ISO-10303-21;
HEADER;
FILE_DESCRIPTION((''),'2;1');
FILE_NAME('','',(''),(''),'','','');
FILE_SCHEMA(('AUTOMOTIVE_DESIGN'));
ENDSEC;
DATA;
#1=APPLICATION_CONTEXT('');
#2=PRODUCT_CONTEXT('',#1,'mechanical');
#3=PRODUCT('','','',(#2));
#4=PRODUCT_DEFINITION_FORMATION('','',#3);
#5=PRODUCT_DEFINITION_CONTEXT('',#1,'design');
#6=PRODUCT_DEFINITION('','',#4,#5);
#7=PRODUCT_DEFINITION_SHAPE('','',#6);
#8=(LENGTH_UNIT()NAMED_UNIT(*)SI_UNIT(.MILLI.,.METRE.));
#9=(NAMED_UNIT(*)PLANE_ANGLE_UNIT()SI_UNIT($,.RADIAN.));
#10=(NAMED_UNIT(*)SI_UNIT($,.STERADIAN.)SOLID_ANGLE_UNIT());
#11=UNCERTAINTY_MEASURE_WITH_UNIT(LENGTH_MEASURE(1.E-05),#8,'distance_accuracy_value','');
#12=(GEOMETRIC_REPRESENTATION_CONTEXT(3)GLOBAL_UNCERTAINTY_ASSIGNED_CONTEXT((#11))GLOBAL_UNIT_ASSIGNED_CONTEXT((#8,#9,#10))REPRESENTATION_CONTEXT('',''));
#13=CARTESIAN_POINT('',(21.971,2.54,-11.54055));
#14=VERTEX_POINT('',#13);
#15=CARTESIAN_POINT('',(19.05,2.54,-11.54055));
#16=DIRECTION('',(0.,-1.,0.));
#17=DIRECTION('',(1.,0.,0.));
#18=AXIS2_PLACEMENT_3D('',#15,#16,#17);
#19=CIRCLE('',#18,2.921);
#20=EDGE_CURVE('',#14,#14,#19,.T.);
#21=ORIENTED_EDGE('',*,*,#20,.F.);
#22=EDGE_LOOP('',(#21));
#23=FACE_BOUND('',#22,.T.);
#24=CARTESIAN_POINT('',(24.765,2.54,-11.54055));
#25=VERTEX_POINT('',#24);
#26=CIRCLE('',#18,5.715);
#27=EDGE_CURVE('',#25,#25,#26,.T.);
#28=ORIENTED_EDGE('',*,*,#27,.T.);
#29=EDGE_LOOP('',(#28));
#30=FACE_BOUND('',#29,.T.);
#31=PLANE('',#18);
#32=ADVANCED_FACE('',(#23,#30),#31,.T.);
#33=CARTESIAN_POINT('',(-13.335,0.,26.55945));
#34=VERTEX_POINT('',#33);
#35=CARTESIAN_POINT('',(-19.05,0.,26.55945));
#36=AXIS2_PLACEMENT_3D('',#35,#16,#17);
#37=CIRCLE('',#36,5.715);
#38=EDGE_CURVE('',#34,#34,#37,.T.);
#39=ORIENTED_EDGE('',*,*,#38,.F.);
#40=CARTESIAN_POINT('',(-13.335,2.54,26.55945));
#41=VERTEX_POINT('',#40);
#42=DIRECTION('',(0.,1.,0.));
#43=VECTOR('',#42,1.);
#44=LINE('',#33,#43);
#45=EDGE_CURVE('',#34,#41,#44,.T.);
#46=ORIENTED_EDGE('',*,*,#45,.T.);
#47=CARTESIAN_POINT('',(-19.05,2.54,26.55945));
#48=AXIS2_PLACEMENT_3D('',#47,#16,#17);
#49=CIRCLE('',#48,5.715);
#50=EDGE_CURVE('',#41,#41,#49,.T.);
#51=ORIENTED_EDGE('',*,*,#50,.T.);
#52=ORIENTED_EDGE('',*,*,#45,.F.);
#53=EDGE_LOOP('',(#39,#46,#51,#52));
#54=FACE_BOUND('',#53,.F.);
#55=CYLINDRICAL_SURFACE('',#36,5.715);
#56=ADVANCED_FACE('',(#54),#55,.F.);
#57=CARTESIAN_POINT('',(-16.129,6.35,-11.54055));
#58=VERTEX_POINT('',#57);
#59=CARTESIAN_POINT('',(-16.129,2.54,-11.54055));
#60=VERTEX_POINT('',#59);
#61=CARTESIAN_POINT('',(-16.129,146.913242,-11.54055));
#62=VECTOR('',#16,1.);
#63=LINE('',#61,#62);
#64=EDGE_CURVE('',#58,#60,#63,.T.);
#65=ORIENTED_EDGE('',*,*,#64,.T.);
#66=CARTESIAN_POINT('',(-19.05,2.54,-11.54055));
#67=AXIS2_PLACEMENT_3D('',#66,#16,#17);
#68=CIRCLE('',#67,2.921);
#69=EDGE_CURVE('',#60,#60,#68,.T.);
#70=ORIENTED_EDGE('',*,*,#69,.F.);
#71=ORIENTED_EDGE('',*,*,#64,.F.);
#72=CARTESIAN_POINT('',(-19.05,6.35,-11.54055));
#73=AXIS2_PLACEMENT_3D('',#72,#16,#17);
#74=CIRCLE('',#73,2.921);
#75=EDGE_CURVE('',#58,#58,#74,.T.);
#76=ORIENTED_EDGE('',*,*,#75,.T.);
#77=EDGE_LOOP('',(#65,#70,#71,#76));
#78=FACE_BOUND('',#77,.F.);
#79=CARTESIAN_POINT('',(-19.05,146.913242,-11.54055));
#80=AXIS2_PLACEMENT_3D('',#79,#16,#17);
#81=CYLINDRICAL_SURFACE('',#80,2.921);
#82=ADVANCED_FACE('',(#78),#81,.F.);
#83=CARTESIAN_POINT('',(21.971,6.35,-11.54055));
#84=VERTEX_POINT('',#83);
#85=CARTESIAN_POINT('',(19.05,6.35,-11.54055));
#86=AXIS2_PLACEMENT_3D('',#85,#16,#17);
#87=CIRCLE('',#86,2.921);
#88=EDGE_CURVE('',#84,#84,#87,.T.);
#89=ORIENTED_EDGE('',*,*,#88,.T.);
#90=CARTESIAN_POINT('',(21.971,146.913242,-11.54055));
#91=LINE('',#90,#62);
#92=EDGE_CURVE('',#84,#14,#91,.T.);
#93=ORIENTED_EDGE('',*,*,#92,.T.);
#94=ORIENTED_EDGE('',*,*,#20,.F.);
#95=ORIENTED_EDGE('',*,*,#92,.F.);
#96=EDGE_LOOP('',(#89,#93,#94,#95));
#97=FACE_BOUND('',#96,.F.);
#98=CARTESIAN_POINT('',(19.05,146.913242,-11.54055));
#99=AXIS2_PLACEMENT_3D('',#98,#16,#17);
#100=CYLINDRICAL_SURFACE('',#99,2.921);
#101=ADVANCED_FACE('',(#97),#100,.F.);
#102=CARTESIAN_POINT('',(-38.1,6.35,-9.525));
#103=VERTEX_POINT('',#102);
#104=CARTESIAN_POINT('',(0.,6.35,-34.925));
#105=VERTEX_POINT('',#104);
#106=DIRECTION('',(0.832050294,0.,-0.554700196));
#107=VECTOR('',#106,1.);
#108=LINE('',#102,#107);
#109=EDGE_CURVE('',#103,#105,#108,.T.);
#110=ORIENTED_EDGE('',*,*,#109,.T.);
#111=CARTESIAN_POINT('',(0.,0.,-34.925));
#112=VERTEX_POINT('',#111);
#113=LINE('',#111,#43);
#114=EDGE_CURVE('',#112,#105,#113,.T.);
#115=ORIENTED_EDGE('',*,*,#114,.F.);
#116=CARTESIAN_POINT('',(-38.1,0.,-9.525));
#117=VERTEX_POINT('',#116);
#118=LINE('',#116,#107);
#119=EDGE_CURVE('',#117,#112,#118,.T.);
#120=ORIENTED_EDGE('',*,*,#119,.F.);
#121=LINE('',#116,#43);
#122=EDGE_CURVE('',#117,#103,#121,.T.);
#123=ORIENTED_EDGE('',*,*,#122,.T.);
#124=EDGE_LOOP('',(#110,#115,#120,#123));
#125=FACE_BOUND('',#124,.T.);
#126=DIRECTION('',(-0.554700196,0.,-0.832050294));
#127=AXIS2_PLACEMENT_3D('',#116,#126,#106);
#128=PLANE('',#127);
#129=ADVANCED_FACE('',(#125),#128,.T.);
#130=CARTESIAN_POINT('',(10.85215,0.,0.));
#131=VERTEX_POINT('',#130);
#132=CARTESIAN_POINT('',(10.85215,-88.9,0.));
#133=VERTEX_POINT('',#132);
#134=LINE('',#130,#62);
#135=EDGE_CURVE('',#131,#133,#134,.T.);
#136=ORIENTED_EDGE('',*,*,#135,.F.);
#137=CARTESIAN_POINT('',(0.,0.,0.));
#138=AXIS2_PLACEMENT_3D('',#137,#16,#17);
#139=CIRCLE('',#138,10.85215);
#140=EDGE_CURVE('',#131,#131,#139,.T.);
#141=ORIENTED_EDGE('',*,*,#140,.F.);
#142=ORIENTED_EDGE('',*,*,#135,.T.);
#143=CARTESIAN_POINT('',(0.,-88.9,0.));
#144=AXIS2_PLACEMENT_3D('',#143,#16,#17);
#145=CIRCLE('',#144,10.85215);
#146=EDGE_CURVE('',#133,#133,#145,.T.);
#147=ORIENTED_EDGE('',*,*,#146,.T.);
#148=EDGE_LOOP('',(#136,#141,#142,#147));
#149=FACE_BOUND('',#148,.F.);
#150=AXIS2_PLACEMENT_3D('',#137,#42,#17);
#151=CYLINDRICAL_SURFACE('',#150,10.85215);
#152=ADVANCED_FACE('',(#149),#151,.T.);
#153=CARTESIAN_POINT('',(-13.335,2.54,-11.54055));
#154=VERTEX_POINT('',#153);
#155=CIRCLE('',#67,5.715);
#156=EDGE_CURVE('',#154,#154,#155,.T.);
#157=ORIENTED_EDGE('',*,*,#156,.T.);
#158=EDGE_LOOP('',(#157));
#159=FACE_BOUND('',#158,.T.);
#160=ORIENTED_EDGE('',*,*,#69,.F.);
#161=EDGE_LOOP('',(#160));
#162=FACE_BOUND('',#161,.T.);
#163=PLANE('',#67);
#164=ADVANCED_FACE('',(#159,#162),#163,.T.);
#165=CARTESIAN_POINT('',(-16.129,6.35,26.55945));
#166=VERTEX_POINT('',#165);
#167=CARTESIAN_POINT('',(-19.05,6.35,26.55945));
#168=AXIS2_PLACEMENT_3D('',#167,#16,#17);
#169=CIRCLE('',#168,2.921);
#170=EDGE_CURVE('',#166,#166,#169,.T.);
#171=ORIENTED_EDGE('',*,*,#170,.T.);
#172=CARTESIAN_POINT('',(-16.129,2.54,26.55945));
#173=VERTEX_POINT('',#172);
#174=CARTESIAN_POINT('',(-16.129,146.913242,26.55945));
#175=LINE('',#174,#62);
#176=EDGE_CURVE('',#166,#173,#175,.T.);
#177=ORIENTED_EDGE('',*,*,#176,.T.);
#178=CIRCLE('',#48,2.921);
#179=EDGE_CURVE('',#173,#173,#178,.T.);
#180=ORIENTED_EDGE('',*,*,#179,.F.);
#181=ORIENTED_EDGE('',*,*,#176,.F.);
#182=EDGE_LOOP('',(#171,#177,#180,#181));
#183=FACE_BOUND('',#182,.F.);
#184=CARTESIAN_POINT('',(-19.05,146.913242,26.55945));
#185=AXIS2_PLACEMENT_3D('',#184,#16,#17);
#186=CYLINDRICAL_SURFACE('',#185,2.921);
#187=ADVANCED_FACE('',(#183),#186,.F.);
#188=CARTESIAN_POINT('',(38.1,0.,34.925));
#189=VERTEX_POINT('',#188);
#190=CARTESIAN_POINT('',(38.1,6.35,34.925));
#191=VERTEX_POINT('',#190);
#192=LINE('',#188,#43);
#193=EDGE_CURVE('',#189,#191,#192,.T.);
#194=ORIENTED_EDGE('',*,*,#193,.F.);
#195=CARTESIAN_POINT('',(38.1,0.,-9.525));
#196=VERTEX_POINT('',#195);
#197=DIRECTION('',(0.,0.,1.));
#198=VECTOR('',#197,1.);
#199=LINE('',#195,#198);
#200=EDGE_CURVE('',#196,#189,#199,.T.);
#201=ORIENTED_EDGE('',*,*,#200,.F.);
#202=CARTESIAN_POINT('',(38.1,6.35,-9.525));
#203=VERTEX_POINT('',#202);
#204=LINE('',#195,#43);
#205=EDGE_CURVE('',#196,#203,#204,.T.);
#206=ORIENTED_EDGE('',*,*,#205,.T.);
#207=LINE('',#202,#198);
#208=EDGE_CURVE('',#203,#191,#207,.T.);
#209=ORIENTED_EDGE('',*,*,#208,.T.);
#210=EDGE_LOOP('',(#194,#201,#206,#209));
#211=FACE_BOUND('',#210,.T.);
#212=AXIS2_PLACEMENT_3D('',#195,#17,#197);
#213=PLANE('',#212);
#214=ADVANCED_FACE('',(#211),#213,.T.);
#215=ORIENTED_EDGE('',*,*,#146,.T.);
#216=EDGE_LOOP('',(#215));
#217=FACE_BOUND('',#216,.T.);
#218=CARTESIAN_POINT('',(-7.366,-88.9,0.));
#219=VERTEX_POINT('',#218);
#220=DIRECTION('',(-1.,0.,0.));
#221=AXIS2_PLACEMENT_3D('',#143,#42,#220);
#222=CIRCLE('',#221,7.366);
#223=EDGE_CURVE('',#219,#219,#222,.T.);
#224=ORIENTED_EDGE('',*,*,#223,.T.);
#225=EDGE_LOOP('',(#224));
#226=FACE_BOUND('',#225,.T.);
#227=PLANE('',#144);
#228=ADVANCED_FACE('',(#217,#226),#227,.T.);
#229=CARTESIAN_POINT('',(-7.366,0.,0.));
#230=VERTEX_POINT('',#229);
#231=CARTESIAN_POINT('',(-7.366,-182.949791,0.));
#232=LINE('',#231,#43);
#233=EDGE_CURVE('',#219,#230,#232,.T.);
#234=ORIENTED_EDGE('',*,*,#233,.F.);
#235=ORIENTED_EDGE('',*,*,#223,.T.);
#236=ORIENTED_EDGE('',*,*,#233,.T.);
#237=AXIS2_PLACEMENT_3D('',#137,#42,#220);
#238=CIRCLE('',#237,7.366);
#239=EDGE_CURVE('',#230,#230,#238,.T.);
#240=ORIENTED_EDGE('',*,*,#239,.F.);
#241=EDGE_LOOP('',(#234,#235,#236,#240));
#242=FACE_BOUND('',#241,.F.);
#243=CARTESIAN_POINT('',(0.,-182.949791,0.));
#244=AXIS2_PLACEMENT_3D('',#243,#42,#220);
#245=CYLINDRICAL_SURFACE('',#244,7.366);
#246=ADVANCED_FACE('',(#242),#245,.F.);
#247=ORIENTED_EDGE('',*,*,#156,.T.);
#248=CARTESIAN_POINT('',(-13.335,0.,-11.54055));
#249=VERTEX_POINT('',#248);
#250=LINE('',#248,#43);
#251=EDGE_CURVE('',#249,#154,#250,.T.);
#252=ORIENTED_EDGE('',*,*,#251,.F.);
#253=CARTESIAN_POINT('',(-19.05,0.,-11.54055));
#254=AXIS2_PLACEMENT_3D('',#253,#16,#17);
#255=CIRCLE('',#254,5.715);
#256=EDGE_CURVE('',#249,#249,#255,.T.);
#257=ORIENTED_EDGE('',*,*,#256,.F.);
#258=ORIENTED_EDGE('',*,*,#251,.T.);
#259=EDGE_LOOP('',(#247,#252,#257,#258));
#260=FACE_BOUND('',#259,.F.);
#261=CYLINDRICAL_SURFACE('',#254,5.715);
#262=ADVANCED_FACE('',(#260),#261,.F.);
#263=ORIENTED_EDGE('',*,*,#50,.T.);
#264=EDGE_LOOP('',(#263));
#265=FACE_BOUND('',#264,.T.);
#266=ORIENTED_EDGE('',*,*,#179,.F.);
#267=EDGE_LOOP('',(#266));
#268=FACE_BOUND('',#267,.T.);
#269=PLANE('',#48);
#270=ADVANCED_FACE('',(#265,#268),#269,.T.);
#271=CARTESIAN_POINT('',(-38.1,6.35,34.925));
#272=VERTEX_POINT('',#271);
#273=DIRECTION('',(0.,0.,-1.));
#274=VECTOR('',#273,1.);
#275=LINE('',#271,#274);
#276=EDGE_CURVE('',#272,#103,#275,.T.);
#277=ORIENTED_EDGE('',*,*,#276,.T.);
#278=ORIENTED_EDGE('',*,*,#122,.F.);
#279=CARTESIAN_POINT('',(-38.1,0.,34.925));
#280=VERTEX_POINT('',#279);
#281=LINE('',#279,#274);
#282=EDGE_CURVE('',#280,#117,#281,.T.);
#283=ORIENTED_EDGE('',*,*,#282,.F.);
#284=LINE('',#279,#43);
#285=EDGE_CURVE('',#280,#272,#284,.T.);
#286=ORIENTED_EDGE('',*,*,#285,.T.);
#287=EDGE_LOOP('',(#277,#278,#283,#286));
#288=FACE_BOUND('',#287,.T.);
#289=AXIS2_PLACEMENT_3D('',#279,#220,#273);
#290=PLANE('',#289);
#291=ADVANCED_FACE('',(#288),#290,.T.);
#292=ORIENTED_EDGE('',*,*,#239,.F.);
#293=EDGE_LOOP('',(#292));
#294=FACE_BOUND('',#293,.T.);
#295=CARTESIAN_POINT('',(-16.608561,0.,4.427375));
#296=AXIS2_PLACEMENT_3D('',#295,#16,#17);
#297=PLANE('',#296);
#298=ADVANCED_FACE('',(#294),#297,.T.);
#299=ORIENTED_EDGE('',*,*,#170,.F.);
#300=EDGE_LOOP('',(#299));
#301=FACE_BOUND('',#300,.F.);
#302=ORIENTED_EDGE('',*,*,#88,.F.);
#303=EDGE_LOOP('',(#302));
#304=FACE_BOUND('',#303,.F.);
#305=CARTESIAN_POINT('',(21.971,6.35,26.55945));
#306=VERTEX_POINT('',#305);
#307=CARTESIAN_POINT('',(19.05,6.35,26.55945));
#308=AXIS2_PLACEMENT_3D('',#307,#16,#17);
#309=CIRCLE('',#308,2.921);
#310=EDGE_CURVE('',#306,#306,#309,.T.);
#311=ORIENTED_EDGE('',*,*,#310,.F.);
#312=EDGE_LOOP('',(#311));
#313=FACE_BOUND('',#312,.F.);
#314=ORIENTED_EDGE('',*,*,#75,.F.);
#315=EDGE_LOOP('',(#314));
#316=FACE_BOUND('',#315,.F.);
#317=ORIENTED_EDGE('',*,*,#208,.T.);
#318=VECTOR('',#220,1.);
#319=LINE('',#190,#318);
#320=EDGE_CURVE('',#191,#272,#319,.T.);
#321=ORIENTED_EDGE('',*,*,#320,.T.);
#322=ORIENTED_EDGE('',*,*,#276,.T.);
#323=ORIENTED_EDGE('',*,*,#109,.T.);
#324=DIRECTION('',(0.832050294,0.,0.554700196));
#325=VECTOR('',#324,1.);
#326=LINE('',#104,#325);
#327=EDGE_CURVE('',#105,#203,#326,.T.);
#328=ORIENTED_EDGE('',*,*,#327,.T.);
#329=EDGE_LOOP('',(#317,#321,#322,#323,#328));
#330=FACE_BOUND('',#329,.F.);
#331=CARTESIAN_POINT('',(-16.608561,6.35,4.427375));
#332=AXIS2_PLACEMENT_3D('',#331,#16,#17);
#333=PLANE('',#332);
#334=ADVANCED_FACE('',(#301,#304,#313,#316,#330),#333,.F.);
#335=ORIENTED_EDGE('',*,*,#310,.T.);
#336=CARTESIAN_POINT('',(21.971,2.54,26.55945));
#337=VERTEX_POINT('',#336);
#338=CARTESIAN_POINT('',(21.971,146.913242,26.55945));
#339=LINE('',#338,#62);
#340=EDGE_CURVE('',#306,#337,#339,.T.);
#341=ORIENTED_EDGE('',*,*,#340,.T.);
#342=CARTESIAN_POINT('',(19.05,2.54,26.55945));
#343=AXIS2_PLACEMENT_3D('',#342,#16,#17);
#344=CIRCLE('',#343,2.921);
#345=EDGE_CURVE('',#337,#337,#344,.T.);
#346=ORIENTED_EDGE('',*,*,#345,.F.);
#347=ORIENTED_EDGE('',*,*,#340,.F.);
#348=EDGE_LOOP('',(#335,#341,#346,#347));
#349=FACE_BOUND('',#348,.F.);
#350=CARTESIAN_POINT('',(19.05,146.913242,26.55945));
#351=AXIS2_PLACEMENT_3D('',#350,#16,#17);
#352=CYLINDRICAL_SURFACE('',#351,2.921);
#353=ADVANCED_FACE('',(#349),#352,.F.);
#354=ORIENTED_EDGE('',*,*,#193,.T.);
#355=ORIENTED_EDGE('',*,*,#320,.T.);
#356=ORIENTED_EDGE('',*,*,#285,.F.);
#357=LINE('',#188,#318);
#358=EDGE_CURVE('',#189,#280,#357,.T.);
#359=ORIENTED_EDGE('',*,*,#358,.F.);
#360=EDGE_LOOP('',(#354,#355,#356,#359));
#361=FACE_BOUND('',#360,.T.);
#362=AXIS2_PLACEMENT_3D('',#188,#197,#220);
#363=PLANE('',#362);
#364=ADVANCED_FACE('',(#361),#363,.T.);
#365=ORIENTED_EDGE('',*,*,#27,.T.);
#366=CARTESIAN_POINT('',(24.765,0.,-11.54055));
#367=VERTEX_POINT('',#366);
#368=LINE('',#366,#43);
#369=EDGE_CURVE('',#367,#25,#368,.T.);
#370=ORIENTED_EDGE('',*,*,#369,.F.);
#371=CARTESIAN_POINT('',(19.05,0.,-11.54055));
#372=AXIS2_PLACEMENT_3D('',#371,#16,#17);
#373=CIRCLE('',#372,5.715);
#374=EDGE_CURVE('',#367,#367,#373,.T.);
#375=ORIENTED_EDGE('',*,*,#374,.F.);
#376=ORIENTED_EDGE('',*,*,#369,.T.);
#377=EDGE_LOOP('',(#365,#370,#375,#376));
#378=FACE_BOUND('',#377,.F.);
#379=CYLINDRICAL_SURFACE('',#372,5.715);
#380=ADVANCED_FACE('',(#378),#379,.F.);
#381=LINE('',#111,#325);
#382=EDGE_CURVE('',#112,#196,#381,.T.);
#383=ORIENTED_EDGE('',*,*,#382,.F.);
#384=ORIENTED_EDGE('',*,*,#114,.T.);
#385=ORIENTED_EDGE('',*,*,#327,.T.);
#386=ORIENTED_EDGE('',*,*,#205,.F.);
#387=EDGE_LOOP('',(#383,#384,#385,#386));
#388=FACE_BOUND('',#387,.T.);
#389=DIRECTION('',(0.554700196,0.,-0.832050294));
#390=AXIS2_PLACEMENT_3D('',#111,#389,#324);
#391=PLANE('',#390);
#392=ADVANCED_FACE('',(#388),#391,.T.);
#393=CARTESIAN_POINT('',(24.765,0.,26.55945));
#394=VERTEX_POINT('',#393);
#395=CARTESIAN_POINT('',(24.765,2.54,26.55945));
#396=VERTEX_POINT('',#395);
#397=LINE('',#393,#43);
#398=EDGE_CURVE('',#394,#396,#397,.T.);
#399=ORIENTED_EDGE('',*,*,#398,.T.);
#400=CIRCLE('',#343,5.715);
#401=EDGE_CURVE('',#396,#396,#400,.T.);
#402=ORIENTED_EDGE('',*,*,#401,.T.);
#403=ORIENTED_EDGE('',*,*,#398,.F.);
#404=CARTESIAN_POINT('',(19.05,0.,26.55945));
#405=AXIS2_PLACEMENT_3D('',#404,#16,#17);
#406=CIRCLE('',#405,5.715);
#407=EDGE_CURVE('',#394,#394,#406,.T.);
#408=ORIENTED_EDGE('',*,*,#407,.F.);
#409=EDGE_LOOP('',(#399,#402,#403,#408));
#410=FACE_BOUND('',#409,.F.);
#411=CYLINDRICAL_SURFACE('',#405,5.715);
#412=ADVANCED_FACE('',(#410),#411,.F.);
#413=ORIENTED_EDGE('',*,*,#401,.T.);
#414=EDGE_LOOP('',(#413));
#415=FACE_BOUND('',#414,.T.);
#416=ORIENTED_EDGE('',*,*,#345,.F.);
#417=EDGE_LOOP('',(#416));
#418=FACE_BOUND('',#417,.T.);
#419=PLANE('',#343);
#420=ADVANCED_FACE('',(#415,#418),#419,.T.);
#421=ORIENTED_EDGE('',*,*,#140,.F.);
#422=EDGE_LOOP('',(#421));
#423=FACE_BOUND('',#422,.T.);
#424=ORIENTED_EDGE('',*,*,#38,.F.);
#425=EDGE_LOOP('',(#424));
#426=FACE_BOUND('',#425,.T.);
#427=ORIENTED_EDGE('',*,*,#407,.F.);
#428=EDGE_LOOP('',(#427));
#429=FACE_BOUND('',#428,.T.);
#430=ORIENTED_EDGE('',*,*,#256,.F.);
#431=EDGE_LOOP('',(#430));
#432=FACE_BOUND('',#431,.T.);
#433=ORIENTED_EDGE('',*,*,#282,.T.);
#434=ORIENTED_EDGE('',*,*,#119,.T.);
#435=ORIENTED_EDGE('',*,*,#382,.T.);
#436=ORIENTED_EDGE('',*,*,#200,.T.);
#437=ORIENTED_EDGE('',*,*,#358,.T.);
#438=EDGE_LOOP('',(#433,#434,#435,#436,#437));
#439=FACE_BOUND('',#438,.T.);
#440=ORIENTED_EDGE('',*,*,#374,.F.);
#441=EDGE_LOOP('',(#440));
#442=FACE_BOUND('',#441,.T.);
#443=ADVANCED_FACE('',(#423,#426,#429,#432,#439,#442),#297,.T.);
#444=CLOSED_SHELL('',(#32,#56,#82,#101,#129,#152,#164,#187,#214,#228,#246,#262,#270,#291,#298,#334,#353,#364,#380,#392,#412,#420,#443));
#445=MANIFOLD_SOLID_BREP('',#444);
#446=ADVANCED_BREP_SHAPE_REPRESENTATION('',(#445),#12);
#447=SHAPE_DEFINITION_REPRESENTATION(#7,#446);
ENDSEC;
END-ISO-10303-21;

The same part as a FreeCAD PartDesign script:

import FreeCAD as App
import Part
import Sketcher
from FreeCAD import Vector
Q = App.Units.Quantity

doc = App.newDocument("Part")
body = doc.addObject("PartDesign::Body", "Body")

# Sketch on XZ plane
sketch1 = body.newObject("Sketcher::SketchObject", "Sketch")
sketch1.AttachmentSupport = (doc.getObject("XZ_Plane"), [""])
sketch1.MapMode = "FlatFace"
sketch1.addGeometry(Part.Circle(Vector(0, 0, 0), Vector(0, 0, 1), 11), False)
sketch1.addConstraint([
    Sketcher.Constraint("Coincident", 0, 3, -1, 1),
    Sketcher.Constraint("Diameter", 0, Q("0.8545 in")),
])
pad1 = body.newObject("PartDesign::Pad", "Pad")
pad1.Profile = sketch1
pad1.Length = Q("3.5 in")

# Sketch on XZ plane
sketch2 = body.newObject("Sketcher::SketchObject", "Sketch001")
sketch2.AttachmentSupport = (doc.getObject("XZ_Plane"), [""])
sketch2.MapMode = "FlatFace"
sketch2.AttachmentOffset = App.Placement(Vector(0, 0, 3.5 * 25.4), App.Rotation())
sketch2.addGeometry(Part.Circle(Vector(0, 0, 0), Vector(0, 0, 1), 7), False)
sketch2.addConstraint([
    Sketcher.Constraint("Coincident", 0, 3, -1, 1),
    Sketcher.Constraint("Diameter", 0, Q("0.58 in")),
])
doc.recompute()
hole = body.newObject("PartDesign::Hole", "Hole")
hole.Profile = sketch2
hole.ThreadType = "None"
hole.Diameter = Q("0.58 in")
hole.DepthType = "ThroughAll"

# Sketch on XZ plane
sketch3 = body.newObject("Sketcher::SketchObject", "Sketch002")
sketch3.AttachmentSupport = (doc.getObject("XZ_Plane"), [""])
sketch3.MapMode = "FlatFace"
sketch3.addGeometry([
    Part.LineSegment(Vector(-38, 35, 0), Vector(-38, -10, 0)),  # 0
    Part.LineSegment(Vector(-38, -10, 0), Vector(0, -35, 0)),  # 1
    Part.LineSegment(Vector(0, -35, 0), Vector(38, -10, 0)),  # 2
    Part.LineSegment(Vector(38, -10, 0), Vector(38, 35, 0)),  # 3
    Part.LineSegment(Vector(38, 35, 0), Vector(-38, 35, 0)),  # 4
], False)
sketch3.addConstraint([
    Sketcher.Constraint("Coincident", 0, 2, 1, 1),
    Sketcher.Constraint("Coincident", 1, 2, 2, 1),
    Sketcher.Constraint("Coincident", 2, 2, 3, 1),
    Sketcher.Constraint("Coincident", 3, 2, 4, 1),
    Sketcher.Constraint("Coincident", 4, 2, 0, 1),
    Sketcher.Constraint("Vertical", 0),
    Sketcher.Constraint("Vertical", 3),
    Sketcher.Constraint("Horizontal", 4),
    Sketcher.Constraint("Symmetric", 0, 2, 2, 2, -2),
    Sketcher.Constraint("PointOnObject", 1, 2, -2),
    Sketcher.Constraint("DistanceX", 4, 2, 4, 1, Q("3 in")),
    Sketcher.Constraint("DistanceY", 1, 2, 0, 2, Q("1 in")),
    Sketcher.Constraint("DistanceY", 0, 2, 0, 1, Q("1.75 in")),
    Sketcher.Constraint("DistanceY", 0, 2, -1, 1, Q("0.375 in")),
])
pad2 = body.newObject("PartDesign::Pad", "Pad001")
pad2.Profile = sketch3
pad2.Length = Q("0.25 in")
pad2.Reversed = True

# Sketch on XZ plane
sketch4 = body.newObject("Sketcher::SketchObject", "Sketch003")
sketch4.AttachmentSupport = (doc.getObject("XZ_Plane"), [""])
sketch4.MapMode = "FlatFace"
sketch4.AttachmentOffset = App.Placement(Vector(0, 0, -0.25 * 25.4), App.Rotation())
sketch4.addGeometry([
    Part.Circle(Vector(19.1, 26.6, 0), Vector(0, 0, 1), 2.9),
    Part.Circle(Vector(-19.1, 26.6, 0), Vector(0, 0, 1), 2.9),
    Part.Circle(Vector(-19.1, -11.5, 0), Vector(0, 0, 1), 2.9),
    Part.Circle(Vector(19.1, -11.5, 0), Vector(0, 0, 1), 2.9),
], False)
sketch4.addConstraint([
    Sketcher.Constraint("Equal", 0, 1),
    Sketcher.Constraint("Equal", 1, 2),
    Sketcher.Constraint("Equal", 2, 3),
    Sketcher.Constraint("Symmetric", 0, 3, 1, 3, -2),
    Sketcher.Constraint("Symmetric", 2, 3, 3, 3, -2),
    Sketcher.Constraint("Vertical", 1, 3, 2, 3),
    Sketcher.Constraint("Diameter", 0, Q("0.23 in")),
    Sketcher.Constraint("DistanceX", 1, 3, 0, 3, Q("1.5 in")),
    Sketcher.Constraint("DistanceY", 2, 3, 1, 3, Q("1.5 in")),
    Sketcher.Constraint("DistanceY", -1, 1, 0, 3, 26.55945),
])
doc.recompute()
hole2 = body.newObject("PartDesign::Hole", "Hole001")
hole2.Profile = sketch4
hole2.ThreadType = "None"
hole2.Diameter = Q("0.23 in")
hole2.DepthType = "ThroughAll"
hole2.Reversed = True

# Sketch on XZ plane
sketch5 = body.newObject("Sketcher::SketchObject", "Sketch004")
sketch5.AttachmentSupport = (doc.getObject("XZ_Plane"), [""])
sketch5.MapMode = "FlatFace"
sketch5.addGeometry([
    Part.Circle(Vector(-19, 27, 0), Vector(0, 0, 1), 6),
    Part.Circle(Vector(19, 27, 0), Vector(0, 0, 1), 6),
    Part.Circle(Vector(-19, -12, 0), Vector(0, 0, 1), 6),
    Part.Circle(Vector(19, -12, 0), Vector(0, 0, 1), 6),
], False)
sketch5.addConstraint([
    Sketcher.Constraint("Equal", 0, 1),
    Sketcher.Constraint("Equal", 1, 2),
    Sketcher.Constraint("Equal", 2, 3),
    Sketcher.Constraint("Symmetric", 0, 3, 1, 3, -2),
    Sketcher.Constraint("Symmetric", 2, 3, 3, 3, -2),
    Sketcher.Constraint("Vertical", 0, 3, 2, 3),
    Sketcher.Constraint("Diameter", 0, Q("0.45 in")),
    Sketcher.Constraint("DistanceX", 0, 3, 1, 3, Q("1.5 in")),
    Sketcher.Constraint("DistanceY", 2, 3, 0, 3, Q("1.5 in")),
    Sketcher.Constraint("DistanceY", -1, 1, 0, 3, 26.55945),
])
pocket1 = body.newObject("PartDesign::Pocket", "Pocket")
pocket1.Profile = sketch5
pocket1.Length = Q("0.1 in")

doc.recompute()
